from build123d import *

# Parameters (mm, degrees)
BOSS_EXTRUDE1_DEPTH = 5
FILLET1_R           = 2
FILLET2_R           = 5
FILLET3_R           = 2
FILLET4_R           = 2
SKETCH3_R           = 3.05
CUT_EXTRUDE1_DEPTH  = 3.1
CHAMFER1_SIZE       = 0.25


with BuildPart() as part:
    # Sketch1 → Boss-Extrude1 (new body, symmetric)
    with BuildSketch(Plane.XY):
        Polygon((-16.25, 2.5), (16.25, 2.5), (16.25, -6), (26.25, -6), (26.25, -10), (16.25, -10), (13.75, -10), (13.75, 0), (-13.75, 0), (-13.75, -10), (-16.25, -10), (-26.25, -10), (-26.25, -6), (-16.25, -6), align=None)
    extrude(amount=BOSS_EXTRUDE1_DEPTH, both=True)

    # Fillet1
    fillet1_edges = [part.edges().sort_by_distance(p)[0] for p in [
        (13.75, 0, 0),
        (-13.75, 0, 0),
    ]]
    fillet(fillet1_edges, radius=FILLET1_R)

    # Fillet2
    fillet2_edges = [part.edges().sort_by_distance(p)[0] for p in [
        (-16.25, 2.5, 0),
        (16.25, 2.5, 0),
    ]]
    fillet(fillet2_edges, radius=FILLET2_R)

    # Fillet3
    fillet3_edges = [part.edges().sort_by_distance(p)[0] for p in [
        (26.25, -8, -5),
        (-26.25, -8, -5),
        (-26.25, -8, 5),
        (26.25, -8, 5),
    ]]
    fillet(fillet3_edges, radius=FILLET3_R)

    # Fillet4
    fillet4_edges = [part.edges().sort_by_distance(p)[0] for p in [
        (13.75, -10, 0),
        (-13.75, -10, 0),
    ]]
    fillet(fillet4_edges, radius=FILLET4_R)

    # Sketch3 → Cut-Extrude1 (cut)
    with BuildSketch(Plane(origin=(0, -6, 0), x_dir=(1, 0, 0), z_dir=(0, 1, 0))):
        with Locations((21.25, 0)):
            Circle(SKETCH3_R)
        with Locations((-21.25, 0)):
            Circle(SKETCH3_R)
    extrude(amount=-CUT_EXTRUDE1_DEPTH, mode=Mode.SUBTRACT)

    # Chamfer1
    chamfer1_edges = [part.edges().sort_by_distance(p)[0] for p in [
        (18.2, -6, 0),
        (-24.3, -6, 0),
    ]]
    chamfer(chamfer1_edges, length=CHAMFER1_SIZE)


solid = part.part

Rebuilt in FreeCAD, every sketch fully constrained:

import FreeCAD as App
import Part
import Sketcher

V = App.Vector
Q = App.Units.Quantity


def edges_at(feature, points):
    """Names of the edges that pass closest to the given points."""
    edges = feature.Shape.Edges
    near = lambda p: min(range(len(edges)), key=lambda i: edges[i].distToShape(Part.Vertex(*p))[0])
    return sorted({f"Edge{near(p) + 1}" for p in points})


def add_polygon(sketch, points):
    """Adds a closed chain of lines whose ends are joined by coincident constraints."""
    first, n = sketch.GeometryCount, len(points)
    for a, b in zip(points, points[1:] + points[:1]):
        sketch.addGeometry(Part.LineSegment(App.Vector(*a, 0), App.Vector(*b, 0)), False)
    for i in range(n):
        sketch.addConstraint(Sketcher.Constraint("Coincident", first + i, 2, first + (i + 1) % n, 1))

doc = App.newDocument("Part")
body = doc.addObject("PartDesign::Body", "Body")

# Sketch on XY plane
sketch1 = body.newObject("Sketcher::SketchObject", "Sketch")
sketch1.AttachmentSupport = (doc.getObject("XY_Plane"), [""])
sketch1.MapMode = "FlatFace"
add_polygon(sketch1, [(16.2, 2.5), (-16.2, 2.5), (-16.2, -6), (-26.2, -6), (-26.2, -10), (-13.8, -10), (-13.8, 0), (13.8, 0), (13.8, -10), (26.2, -10), (26.2, -6), (16.2, -6)])  # lines 0-11
sketch1.addConstraint(Sketcher.Constraint("Horizontal", 0))
sketch1.addConstraint(Sketcher.Constraint("Vertical", 1))
sketch1.addConstraint(Sketcher.Constraint("Horizontal", 2))
sketch1.addConstraint(Sketcher.Constraint("Vertical", 3))
sketch1.addConstraint(Sketcher.Constraint("Horizontal", 4))
sketch1.addConstraint(Sketcher.Constraint("Vertical", 5))
sketch1.addConstraint(Sketcher.Constraint("Horizontal", 6))
sketch1.addConstraint(Sketcher.Constraint("Vertical", 7))
sketch1.addConstraint(Sketcher.Constraint("Horizontal", 8))
sketch1.addConstraint(Sketcher.Constraint("Vertical", 9))
sketch1.addConstraint(Sketcher.Constraint("Horizontal", 10))
sketch1.addConstraint(Sketcher.Constraint("Vertical", 11))
sketch1.addConstraint(Sketcher.Constraint("Symmetric", 5, 2, 6, 2, -1, 1))
sketch1.addConstraint(Sketcher.Constraint("Symmetric", 3, 2, 8, 2, -2))
sketch1.addConstraint(Sketcher.Constraint("Symmetric", 1, 2, 10, 2, -2))
sketch1.addConstraint(Sketcher.Constraint("Equal", 10, 5))
sketch1.addConstraint(Sketcher.Constraint("DistanceX", 2, 2, 2, 1, Q("10 mm")))
sketch1.addConstraint(Sketcher.Constraint("DistanceY", 3, 2, 3, 1, Q("4 mm")))
sketch1.addConstraint(Sketcher.Constraint("DistanceX", 0, 2, 0, 1, Q("32.5 mm")))
sketch1.addConstraint(Sketcher.Constraint("DistanceX", 4, 1, 4, 2, Q("12.5 mm")))
sketch1.addConstraint(Sketcher.Constraint("DistanceY", 1, 2, 1, 1, Q("8.5 mm")))
pad1 = body.newObject("PartDesign::Pad", "Pad")
pad1.Profile = sketch1
pad1.Length = 10
pad1.Midplane = True
doc.recompute()

fillet = body.newObject("PartDesign::Fillet", "Fillet")
fillet.Base = (pad1, edges_at(pad1, [(13.75, 0, 0), (-13.75, 0, 0)]))
fillet.Radius = 2
doc.recompute()

fillet2 = body.newObject("PartDesign::Fillet", "Fillet001")
fillet2.Base = (fillet, edges_at(fillet, [(-16.25, 2.5, 0), (16.25, 2.5, 0)]))
fillet2.Radius = 5
doc.recompute()

fillet3 = body.newObject("PartDesign::Fillet", "Fillet002")
fillet3.Base = (fillet2, edges_at(fillet2, [
    (26.25, -8, -5),
    (-26.25, -8, -5),
    (-26.25, -8, 5),
    (26.25, -8, 5),
]))
fillet3.Radius = 2
doc.recompute()

fillet4 = body.newObject("PartDesign::Fillet", "Fillet003")
fillet4.Base = (fillet3, edges_at(fillet3, [(13.75, -10, 0), (-13.75, -10, 0)]))
fillet4.Radius = 2

# Sketch on XZ plane
sketch2 = body.newObject("Sketcher::SketchObject", "Sketch001")
sketch2.AttachmentSupport = (doc.getObject("XZ_Plane"), [""])
sketch2.MapMode = "FlatFace"
sketch2.AttachmentOffset = App.Placement(V(0, 0, 6), App.Rotation())
sketch2.addGeometry(Part.Circle(V(21.2, 0, 0), V(0, 0, 1), 3), False)
sketch2.addGeometry(Part.Circle(V(-21.2, 0, 0), V(0, 0, 1), 3), False)
sketch2.addConstraint(Sketcher.Constraint("Equal", 0, 1))
sketch2.addConstraint(Sketcher.Constraint("Symmetric", 0, 3, 1, 3, -1, 1))
sketch2.addConstraint(Sketcher.Constraint("PointOnObject", 0, 3, -1))
sketch2.addConstraint(Sketcher.Constraint("Diameter", 0, Q("6.1 mm")))
sketch2.addConstraint(Sketcher.Constraint("DistanceX", 1, 3, 0, 3, Q("42.5 mm")))
pocket1 = body.newObject("PartDesign::Pocket", "Pocket")
pocket1.Profile = sketch2
pocket1.Length = 3.1
pocket1.Reversed = True
doc.recompute()

chamfer = body.newObject("PartDesign::Chamfer", "Chamfer")
chamfer.Base = (pocket1, edges_at(pocket1, [(18.2, -6, 0), (-24.3, -6, 0)]))
chamfer.Size = 0.25

doc.recompute()
